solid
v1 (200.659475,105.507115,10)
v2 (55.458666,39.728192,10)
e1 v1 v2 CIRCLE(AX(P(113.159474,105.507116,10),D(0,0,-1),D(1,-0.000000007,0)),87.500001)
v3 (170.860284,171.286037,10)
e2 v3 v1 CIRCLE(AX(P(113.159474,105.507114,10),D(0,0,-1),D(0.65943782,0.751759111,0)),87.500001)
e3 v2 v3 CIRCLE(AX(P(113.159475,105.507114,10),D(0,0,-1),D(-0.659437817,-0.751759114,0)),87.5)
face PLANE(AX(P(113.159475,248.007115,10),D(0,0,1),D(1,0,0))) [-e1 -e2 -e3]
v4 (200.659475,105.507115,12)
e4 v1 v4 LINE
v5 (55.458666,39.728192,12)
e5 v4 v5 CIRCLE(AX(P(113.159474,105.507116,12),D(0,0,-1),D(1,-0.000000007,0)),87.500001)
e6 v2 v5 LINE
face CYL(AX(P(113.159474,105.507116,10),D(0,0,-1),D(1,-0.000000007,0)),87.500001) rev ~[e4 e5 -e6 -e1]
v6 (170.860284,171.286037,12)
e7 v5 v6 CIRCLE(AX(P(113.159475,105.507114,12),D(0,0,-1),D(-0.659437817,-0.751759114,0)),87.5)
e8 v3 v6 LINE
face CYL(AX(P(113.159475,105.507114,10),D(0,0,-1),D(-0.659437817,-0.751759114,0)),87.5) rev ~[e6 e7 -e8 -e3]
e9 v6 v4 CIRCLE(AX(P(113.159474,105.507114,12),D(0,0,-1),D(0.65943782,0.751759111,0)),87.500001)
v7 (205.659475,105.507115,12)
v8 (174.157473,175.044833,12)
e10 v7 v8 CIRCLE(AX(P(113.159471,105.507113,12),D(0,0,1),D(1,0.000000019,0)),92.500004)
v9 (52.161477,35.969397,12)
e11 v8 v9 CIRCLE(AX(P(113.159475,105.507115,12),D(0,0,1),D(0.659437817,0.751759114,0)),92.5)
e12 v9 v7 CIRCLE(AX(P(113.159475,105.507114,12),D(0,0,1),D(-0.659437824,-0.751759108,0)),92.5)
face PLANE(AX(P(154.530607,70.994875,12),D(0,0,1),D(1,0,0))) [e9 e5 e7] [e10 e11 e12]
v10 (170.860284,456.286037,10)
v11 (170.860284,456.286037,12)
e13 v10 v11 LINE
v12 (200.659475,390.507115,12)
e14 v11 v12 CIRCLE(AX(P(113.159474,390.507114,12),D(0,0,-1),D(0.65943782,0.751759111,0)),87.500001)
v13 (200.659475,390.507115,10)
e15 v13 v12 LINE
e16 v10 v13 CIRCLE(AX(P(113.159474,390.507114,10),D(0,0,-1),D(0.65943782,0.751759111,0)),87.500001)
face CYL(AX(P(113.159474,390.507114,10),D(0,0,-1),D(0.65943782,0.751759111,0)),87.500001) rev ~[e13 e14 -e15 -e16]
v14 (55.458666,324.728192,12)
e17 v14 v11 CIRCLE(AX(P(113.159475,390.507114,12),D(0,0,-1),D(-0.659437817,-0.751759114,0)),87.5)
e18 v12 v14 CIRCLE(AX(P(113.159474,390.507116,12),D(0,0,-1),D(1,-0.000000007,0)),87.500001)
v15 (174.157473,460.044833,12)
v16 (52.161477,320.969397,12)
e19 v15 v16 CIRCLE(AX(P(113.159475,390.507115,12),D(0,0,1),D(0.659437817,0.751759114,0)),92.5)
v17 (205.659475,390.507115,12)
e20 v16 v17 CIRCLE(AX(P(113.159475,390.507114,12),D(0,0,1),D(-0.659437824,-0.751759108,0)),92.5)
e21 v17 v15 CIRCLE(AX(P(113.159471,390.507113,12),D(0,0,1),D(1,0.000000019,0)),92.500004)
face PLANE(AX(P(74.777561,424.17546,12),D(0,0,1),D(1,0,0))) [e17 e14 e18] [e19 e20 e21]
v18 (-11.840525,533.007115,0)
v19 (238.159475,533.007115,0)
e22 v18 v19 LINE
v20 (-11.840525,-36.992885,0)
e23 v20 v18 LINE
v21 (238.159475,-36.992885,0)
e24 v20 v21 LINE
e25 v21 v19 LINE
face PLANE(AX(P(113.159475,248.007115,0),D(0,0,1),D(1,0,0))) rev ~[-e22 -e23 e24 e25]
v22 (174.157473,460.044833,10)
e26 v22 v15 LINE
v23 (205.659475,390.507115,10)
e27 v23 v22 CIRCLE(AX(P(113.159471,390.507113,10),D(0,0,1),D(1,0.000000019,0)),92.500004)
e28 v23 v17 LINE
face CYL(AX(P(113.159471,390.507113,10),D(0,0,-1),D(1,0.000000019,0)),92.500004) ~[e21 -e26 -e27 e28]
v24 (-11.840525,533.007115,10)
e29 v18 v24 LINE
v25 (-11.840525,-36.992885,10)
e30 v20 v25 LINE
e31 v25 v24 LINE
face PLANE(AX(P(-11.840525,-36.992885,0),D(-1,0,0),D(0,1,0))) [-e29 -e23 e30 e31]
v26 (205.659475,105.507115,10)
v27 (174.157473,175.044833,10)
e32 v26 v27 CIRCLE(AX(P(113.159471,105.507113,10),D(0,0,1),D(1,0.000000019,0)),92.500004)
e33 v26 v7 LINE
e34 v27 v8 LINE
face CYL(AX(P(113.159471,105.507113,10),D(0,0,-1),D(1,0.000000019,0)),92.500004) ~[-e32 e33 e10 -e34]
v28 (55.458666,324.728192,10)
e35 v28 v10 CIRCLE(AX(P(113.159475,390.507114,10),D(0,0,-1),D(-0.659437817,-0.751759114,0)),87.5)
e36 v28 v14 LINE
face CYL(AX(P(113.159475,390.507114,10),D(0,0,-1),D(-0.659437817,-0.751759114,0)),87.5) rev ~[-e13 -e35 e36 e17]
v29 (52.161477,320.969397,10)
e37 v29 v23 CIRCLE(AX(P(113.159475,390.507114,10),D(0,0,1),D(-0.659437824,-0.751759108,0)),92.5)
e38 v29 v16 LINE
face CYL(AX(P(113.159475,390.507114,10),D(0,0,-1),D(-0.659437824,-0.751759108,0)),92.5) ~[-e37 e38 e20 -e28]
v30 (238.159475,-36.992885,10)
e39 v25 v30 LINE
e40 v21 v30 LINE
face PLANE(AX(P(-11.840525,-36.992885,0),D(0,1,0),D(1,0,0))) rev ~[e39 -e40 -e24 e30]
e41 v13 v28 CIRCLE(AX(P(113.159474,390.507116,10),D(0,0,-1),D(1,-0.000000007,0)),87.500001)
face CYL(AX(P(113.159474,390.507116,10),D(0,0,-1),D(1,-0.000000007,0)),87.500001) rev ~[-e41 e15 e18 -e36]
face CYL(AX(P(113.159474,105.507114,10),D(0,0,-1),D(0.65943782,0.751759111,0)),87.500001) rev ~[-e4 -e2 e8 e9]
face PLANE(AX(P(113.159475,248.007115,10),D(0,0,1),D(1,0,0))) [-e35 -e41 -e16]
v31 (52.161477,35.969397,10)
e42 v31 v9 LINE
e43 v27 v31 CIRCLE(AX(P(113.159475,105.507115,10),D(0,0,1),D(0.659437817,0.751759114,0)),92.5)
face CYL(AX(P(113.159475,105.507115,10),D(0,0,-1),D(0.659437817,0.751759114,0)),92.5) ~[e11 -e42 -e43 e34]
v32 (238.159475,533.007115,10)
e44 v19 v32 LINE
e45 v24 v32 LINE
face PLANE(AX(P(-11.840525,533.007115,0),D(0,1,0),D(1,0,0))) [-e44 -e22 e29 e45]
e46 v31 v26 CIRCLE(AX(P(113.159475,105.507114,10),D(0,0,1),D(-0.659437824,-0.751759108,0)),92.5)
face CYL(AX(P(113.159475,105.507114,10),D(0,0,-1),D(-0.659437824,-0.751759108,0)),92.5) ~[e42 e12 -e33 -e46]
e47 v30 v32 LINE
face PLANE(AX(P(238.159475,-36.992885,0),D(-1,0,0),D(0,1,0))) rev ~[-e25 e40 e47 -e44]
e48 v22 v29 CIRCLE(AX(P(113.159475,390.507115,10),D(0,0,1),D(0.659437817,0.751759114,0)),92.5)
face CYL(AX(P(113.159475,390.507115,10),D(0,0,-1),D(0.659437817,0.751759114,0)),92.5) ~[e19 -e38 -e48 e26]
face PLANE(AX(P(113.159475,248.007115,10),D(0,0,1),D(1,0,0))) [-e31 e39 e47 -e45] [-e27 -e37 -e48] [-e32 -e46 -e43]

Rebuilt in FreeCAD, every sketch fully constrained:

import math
import FreeCAD as App
import Part
import Sketcher

doc = App.newDocument("Part")
params = doc.addObject("Spreadsheet::Sheet", "Params")
for row, (alias, value) in enumerate([
    ("sketch1_width", "250 mm"),
    ("sketch1_height", "570 mm"),
    ("pad1_length", "10 mm"),
    ("sketch2_radius", "92.5 mm"),
    ("sketch2_radius2", "87.5 mm"),
    ("pad2_length", "2 mm"),
], start=1):
    params.set(f"A{row}", alias)
    params.set(f"B{row}", "=" + value)
    params.setAlias(f"B{row}", alias)

body = doc.addObject("PartDesign::Body", "Body")

# Sketch on XY plane
sketch1 = body.newObject("Sketcher::SketchObject", "Sketch")
sketch1.AttachmentSupport = (doc.getObject("XY_Plane"), [""])
sketch1.MapMode = "FlatFace"
sketch1.addGeometry([
    Part.LineSegment(App.Vector(-12, 533, 0), App.Vector(-12, -37, 0)),
    Part.LineSegment(App.Vector(-12, -37, 0), App.Vector(238, -37, 0)),
    Part.LineSegment(App.Vector(238, -37, 0), App.Vector(238, 533, 0)),
    Part.LineSegment(App.Vector(238, 533, 0), App.Vector(-12, 533, 0)),
], False)
sketch1.addConstraint([
    Sketcher.Constraint("Coincident", 0, 2, 1, 1),
    Sketcher.Constraint("Coincident", 1, 2, 2, 1),
    Sketcher.Constraint("Coincident", 2, 2, 3, 1),
    Sketcher.Constraint("Coincident", 3, 2, 0, 1),
    Sketcher.Constraint("Vertical", 0),
    Sketcher.Constraint("Horizontal", 1),
    Sketcher.Constraint("Vertical", 2),
    Sketcher.Constraint("Horizontal", 3),
    Sketcher.Constraint("DistanceX", 1, 1, 1, 2, 250.0),
    Sketcher.Constraint("DistanceY", 0, 2, 0, 1, 570.0),
    Sketcher.Constraint("DistanceX", 0, 2, -1, 1, 11.840525),
    Sketcher.Constraint("DistanceY", 0, 2, -1, 1, 36.992885),
])
sketch1.setExpression("Constraints[8]", "Params.sketch1_width")
sketch1.setExpression("Constraints[9]", "Params.sketch1_height")
pad1 = body.newObject("PartDesign::Pad", "Pad")
pad1.Profile = sketch1
pad1.setExpression("Length", "Params.pad1_length")

# Sketch on XY plane
sketch2 = body.newObject("Sketcher::SketchObject", "Sketch001")
sketch2.AttachmentSupport = (doc.getObject("XY_Plane"), [""])
sketch2.MapMode = "FlatFace"
sketch2.AttachmentOffset = App.Placement(App.Vector(0, 0, 10), App.Rotation())
sketch2.addGeometry([
    Part.ArcOfCircle(Part.Circle(App.Vector(113, 391, 0), App.Vector(0, 0, 1), 92), math.radians(49), math.radians(229)),  # 0
    Part.ArcOfCircle(Part.Circle(App.Vector(113, 391, 0), App.Vector(0, 0, 1), 92), math.radians(-131), math.radians(0)),  # 1
    Part.ArcOfCircle(Part.Circle(App.Vector(113, 391, 0), App.Vector(0, 0, 1), 93), math.radians(0), math.radians(49)),  # 2
    Part.ArcOfCircle(Part.Circle(App.Vector(113, 391, 0), App.Vector(0, 0, 1), 88), math.radians(49), math.radians(229)),  # 3
    Part.ArcOfCircle(Part.Circle(App.Vector(113, 391, 0), App.Vector(0, 0, 1), 88), math.radians(0), math.radians(49)),  # 4
    Part.ArcOfCircle(Part.Circle(App.Vector(113, 391, 0), App.Vector(0, 0, 1), 88), math.radians(-131), math.radians(0)),  # 5
    Part.ArcOfCircle(Part.Circle(App.Vector(113, 106, 0), App.Vector(0, 0, 1), 93), math.radians(0), math.radians(49)),  # 6
    Part.ArcOfCircle(Part.Circle(App.Vector(113, 106, 0), App.Vector(0, 0, 1), 92), math.radians(49), math.radians(229)),  # 7
    Part.ArcOfCircle(Part.Circle(App.Vector(113, 106, 0), App.Vector(0, 0, 1), 92), math.radians(-131), math.radians(0)),  # 8
    Part.ArcOfCircle(Part.Circle(App.Vector(113, 106, 0), App.Vector(0, 0, 1), 88), math.radians(0), math.radians(49)),  # 9
    Part.ArcOfCircle(Part.Circle(App.Vector(113, 106, 0), App.Vector(0, 0, 1), 88), math.radians(-131), math.radians(0)),  # 10
    Part.ArcOfCircle(Part.Circle(App.Vector(113, 106, 0), App.Vector(0, 0, 1), 88), math.radians(49), math.radians(229)),  # 11
], False)
sketch2.addConstraint([
    Sketcher.Constraint("Tangent", 0, 2, 1, 1),
    Sketcher.Constraint("Tangent", 1, 2, 2, 1),
    Sketcher.Constraint("Tangent", 2, 2, 0, 1),
    Sketcher.Constraint("Tangent", 3, 1, 4, 2),
    Sketcher.Constraint("Tangent", 4, 1, 5, 2),
    Sketcher.Constraint("Tangent", 5, 1, 3, 2),
    Sketcher.Constraint("Tangent", 6, 2, 7, 1),
    Sketcher.Constraint("Tangent", 7, 2, 8, 1),
    Sketcher.Constraint("Tangent", 8, 2, 6, 1),
    Sketcher.Constraint("Tangent", 9, 1, 10, 2),
    Sketcher.Constraint("Tangent", 10, 1, 11, 2),
    Sketcher.Constraint("Tangent", 11, 1, 9, 2),
    Sketcher.Constraint("Coincident", 3, 3, 0, 3),
    Sketcher.Constraint("Coincident", 9, 3, 6, 3),
    Sketcher.Constraint("Equal", 2, 6),
    Sketcher.Constraint("Equal", 5, 9),
    Sketcher.Constraint("Horizontal", 5, 3, 1, 2),
    Sketcher.Constraint("Horizontal", 1, 2, 4, 1),
    Sketcher.Constraint("Horizontal", 11, 3, 8, 2),
    Sketcher.Constraint("Horizontal", 8, 2, 9, 1),
    Sketcher.Constraint("Vertical", 2, 3, 6, 3),
    Sketcher.Constraint("Vertical", 2, 2, 6, 2),
    Sketcher.Constraint("Vertical", 0, 2, 7, 2),
    Sketcher.Constraint("Vertical", 5, 1, 10, 1),
    Sketcher.Constraint("Vertical", 3, 1, 11, 1),
    Sketcher.Constraint("Radius", 0, 92.5),
    Sketcher.Constraint("Radius", 3, 87.5),
    Sketcher.Constraint("DistanceY", 6, 3, 2, 3, 285.0),
    Sketcher.Constraint("DistanceX", 0, 2, 3, 3, 60.997998),
    Sketcher.Constraint("DistanceX", 2, 2, 1, 2, 31.502002),
    Sketcher.Constraint("DistanceX", -1, 1, 2, 3, 113.159471),
    Sketcher.Constraint("DistanceX", 3, 1, 2, 2, 3.297189),
    Sketcher.Constraint("DistanceX", 0, 2, 5, 1, 3.297189),
    Sketcher.Constraint("DistanceY", -1, 1, 0, 3, 390.507115),
])
sketch2.setExpression("Constraints[25]", "Params.sketch2_radius")
sketch2.setExpression("Constraints[26]", "Params.sketch2_radius2")
pad2 = body.newObject("PartDesign::Pad", "Pad001")
pad2.Profile = sketch2
pad2.setExpression("Length", "Params.pad2_length")

doc.recompute()
